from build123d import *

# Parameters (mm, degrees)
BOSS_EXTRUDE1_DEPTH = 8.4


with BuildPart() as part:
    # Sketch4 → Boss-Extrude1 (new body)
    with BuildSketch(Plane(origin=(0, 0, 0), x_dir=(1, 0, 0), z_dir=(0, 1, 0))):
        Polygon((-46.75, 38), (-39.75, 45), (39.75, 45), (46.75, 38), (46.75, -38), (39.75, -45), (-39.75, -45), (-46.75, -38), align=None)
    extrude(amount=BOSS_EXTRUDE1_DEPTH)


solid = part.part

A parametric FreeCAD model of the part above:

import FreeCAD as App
import Part
import Sketcher
from FreeCAD import Vector

doc = App.newDocument("Part")
params = doc.addObject("Spreadsheet::Sheet", "Params")
for row, (alias, value) in enumerate([
    ("sketch1_height", "76 mm"),
    ("sketch1_width", "79.5 mm"),
    ("pad1_length", "8.4 mm"),
], start=1):
    params.set(f"A{row}", alias)
    params.set(f"B{row}", "=" + value)
    params.setAlias(f"B{row}", alias)

body = doc.addObject("PartDesign::Body", "Body")

sketch1 = doc.addObject("Sketcher::SketchObject", "Sketch")
body.addObject(sketch1)
sketch1.AttachmentSupport = (doc.XZ_Plane, [""])
sketch1.MapMode = "FlatFace"
sketch1.addGeometry([
    Part.LineSegment(Vector(-40, -45, 0), Vector(-47, -38, 0)),
    Part.LineSegment(Vector(-47, -38, 0), Vector(-47, 38, 0)),
    Part.LineSegment(Vector(-47, 38, 0), Vector(-40, 45, 0)),
    Part.LineSegment(Vector(-40, 45, 0), Vector(40, 45, 0)),
    Part.LineSegment(Vector(40, 45, 0), Vector(47, 38, 0)),
    Part.LineSegment(Vector(47, 38, 0), Vector(47, -38, 0)),
    Part.LineSegment(Vector(47, -38, 0), Vector(40, -45, 0)),
    Part.LineSegment(Vector(40, -45, 0), Vector(-40, -45, 0)),
], False)
sketch1.addConstraint([
    Sketcher.Constraint("Coincident", 0, 2, 1, 1),
    Sketcher.Constraint("Coincident", 1, 2, 2, 1),
    Sketcher.Constraint("Coincident", 2, 2, 3, 1),
    Sketcher.Constraint("Coincident", 3, 2, 4, 1),
    Sketcher.Constraint("Coincident", 4, 2, 5, 1),
    Sketcher.Constraint("Coincident", 5, 2, 6, 1),
    Sketcher.Constraint("Coincident", 6, 2, 7, 1),
    Sketcher.Constraint("Coincident", 7, 2, 0, 1),
    Sketcher.Constraint("Vertical", 1),
    Sketcher.Constraint("Horizontal", 3),
    Sketcher.Constraint("Vertical", 5),
    Sketcher.Constraint("Horizontal", 7),
    Sketcher.Constraint("Symmetric", 0, 2, 4, 2, -1, 1),
    Sketcher.Constraint("Symmetric", 2, 2, 6, 2, -1, 1),
    Sketcher.Constraint("Perpendicular", 0, 2),
    Sketcher.Constraint("Perpendicular", 2, 4),
    Sketcher.Constraint("Perpendicular", 4, 6),
    Sketcher.Constraint("Horizontal", 1, 2, 4, 2),
    Sketcher.Constraint("Vertical", 3, 2, 6, 2),
    Sketcher.Constraint("DistanceY", 1, 1, 1, 2, 76.0),
    Sketcher.Constraint("DistanceX", 3, 1, 3, 2, 79.5),
    Sketcher.Constraint("DistanceY", -1, 1, 2, 2, 45.0),
])
sketch1.setExpression("Constraints[19]", "Params.sketch1_height")
sketch1.setExpression("Constraints[20]", "Params.sketch1_width")
pad1 = doc.addObject("PartDesign::Pad", "Pad")
body.addObject(pad1)
pad1.Profile = sketch1
pad1.setExpression("Length", "Params.pad1_length")
pad1.Reversed = True

doc.recompute()
